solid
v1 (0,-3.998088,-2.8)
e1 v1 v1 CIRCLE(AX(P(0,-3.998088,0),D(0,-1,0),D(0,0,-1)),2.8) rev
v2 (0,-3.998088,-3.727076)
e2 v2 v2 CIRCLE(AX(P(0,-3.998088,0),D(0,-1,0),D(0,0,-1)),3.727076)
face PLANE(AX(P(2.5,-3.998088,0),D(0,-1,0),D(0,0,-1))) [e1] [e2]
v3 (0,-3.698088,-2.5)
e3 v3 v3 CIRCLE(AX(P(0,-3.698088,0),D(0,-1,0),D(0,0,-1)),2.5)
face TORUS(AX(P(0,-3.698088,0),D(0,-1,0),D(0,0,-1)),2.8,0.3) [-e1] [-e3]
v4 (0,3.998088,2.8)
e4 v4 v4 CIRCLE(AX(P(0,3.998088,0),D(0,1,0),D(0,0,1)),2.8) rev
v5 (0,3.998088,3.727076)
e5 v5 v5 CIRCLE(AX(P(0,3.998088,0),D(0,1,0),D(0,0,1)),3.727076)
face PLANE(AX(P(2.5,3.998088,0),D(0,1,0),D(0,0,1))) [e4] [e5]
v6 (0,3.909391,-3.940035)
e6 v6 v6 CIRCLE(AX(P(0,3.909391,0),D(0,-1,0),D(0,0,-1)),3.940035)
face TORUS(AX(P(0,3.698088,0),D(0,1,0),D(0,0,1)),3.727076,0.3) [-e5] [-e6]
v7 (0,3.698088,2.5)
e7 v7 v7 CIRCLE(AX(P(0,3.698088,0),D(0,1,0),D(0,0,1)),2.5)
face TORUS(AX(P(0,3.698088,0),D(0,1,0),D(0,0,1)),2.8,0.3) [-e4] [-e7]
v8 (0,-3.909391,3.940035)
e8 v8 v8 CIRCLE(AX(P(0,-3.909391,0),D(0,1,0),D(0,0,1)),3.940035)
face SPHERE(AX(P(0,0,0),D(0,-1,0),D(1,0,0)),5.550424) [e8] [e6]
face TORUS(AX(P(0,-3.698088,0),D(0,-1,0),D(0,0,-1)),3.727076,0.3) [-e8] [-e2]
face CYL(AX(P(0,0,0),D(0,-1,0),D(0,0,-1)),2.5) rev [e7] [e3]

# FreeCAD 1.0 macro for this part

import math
import FreeCAD as App
import Part
import Sketcher
Q = App.Units.Quantity


def edges_at(feature, points):
    """Names of the edges that pass closest to the given points."""
    edges = feature.Shape.Edges
    near = lambda p: min(range(len(edges)), key=lambda i: edges[i].distToShape(Part.Vertex(*p))[0])
    return sorted({f"Edge{near(p) + 1}" for p in points})

doc = App.newDocument("Part")
body = doc.addObject("PartDesign::Body", "Body")

sketch1 = doc.addObject("Sketcher::SketchObject", "Sketch")
body.addObject(sketch1)
sketch1.AttachmentSupport = (doc.XY_Plane, [""])
sketch1.MapMode = "FlatFace"
sketch1.addGeometry([
    Part.LineSegment(App.Vector(2.5, 3.998088, 0), App.Vector(2.5, -3.998088, 0)),
    Part.LineSegment(App.Vector(2.5, -3.998088, 0), App.Vector(3.85, -3.998088, 0)),
    Part.ArcOfCircle(Part.Circle(App.Vector(0, 0, 0), App.Vector(0, 0, 1), 5.550424), math.radians(-46.081006), math.radians(46.081006)),
    Part.LineSegment(App.Vector(3.85, 3.998088, 0), App.Vector(2.5, 3.998088, 0)),
], False)
sketch1.addConstraint([
    Sketcher.Constraint("Coincident", 0, 2, 1, 1),
    Sketcher.Constraint("Coincident", 1, 2, 2, 1),
    Sketcher.Constraint("Coincident", 2, 2, 3, 1),
    Sketcher.Constraint("Coincident", 3, 2, 0, 1),
    Sketcher.Constraint("Vertical", 0),
    Sketcher.Constraint("Horizontal", 1),
    Sketcher.Constraint("Horizontal", 3),
    Sketcher.Constraint("Coincident", 2, 3, -1, 1),
    Sketcher.Constraint("Vertical", 1, 2, 2, 2),
    Sketcher.Constraint("DistanceX", 1, 1, 1, 2, Q("1.35 mm")),
    Sketcher.Constraint("DistanceX", -1, 1, 0, 2, Q("2.5 mm")),
    Sketcher.Constraint("Radius", 2, Q("5.550424 mm")),
])
revolution = doc.addObject("PartDesign::Revolution", "Revolution")
body.addObject(revolution)
revolution.Profile = sketch1
revolution.ReferenceAxis = (sketch1, ["V_Axis"])
revolution.Angle = 360
doc.recompute()

fillet = doc.addObject("PartDesign::Fillet", "Fillet")
body.addObject(fillet)
fillet.Base = (revolution, edges_at(revolution, [
    (-3.85, 3.998, 0),
    (-3.85, -3.998, 0),
    (-2.5, -3.998, 0),
    (-2.5, 3.998, 0),
]))
fillet.Radius = 0.3

doc.recompute()
